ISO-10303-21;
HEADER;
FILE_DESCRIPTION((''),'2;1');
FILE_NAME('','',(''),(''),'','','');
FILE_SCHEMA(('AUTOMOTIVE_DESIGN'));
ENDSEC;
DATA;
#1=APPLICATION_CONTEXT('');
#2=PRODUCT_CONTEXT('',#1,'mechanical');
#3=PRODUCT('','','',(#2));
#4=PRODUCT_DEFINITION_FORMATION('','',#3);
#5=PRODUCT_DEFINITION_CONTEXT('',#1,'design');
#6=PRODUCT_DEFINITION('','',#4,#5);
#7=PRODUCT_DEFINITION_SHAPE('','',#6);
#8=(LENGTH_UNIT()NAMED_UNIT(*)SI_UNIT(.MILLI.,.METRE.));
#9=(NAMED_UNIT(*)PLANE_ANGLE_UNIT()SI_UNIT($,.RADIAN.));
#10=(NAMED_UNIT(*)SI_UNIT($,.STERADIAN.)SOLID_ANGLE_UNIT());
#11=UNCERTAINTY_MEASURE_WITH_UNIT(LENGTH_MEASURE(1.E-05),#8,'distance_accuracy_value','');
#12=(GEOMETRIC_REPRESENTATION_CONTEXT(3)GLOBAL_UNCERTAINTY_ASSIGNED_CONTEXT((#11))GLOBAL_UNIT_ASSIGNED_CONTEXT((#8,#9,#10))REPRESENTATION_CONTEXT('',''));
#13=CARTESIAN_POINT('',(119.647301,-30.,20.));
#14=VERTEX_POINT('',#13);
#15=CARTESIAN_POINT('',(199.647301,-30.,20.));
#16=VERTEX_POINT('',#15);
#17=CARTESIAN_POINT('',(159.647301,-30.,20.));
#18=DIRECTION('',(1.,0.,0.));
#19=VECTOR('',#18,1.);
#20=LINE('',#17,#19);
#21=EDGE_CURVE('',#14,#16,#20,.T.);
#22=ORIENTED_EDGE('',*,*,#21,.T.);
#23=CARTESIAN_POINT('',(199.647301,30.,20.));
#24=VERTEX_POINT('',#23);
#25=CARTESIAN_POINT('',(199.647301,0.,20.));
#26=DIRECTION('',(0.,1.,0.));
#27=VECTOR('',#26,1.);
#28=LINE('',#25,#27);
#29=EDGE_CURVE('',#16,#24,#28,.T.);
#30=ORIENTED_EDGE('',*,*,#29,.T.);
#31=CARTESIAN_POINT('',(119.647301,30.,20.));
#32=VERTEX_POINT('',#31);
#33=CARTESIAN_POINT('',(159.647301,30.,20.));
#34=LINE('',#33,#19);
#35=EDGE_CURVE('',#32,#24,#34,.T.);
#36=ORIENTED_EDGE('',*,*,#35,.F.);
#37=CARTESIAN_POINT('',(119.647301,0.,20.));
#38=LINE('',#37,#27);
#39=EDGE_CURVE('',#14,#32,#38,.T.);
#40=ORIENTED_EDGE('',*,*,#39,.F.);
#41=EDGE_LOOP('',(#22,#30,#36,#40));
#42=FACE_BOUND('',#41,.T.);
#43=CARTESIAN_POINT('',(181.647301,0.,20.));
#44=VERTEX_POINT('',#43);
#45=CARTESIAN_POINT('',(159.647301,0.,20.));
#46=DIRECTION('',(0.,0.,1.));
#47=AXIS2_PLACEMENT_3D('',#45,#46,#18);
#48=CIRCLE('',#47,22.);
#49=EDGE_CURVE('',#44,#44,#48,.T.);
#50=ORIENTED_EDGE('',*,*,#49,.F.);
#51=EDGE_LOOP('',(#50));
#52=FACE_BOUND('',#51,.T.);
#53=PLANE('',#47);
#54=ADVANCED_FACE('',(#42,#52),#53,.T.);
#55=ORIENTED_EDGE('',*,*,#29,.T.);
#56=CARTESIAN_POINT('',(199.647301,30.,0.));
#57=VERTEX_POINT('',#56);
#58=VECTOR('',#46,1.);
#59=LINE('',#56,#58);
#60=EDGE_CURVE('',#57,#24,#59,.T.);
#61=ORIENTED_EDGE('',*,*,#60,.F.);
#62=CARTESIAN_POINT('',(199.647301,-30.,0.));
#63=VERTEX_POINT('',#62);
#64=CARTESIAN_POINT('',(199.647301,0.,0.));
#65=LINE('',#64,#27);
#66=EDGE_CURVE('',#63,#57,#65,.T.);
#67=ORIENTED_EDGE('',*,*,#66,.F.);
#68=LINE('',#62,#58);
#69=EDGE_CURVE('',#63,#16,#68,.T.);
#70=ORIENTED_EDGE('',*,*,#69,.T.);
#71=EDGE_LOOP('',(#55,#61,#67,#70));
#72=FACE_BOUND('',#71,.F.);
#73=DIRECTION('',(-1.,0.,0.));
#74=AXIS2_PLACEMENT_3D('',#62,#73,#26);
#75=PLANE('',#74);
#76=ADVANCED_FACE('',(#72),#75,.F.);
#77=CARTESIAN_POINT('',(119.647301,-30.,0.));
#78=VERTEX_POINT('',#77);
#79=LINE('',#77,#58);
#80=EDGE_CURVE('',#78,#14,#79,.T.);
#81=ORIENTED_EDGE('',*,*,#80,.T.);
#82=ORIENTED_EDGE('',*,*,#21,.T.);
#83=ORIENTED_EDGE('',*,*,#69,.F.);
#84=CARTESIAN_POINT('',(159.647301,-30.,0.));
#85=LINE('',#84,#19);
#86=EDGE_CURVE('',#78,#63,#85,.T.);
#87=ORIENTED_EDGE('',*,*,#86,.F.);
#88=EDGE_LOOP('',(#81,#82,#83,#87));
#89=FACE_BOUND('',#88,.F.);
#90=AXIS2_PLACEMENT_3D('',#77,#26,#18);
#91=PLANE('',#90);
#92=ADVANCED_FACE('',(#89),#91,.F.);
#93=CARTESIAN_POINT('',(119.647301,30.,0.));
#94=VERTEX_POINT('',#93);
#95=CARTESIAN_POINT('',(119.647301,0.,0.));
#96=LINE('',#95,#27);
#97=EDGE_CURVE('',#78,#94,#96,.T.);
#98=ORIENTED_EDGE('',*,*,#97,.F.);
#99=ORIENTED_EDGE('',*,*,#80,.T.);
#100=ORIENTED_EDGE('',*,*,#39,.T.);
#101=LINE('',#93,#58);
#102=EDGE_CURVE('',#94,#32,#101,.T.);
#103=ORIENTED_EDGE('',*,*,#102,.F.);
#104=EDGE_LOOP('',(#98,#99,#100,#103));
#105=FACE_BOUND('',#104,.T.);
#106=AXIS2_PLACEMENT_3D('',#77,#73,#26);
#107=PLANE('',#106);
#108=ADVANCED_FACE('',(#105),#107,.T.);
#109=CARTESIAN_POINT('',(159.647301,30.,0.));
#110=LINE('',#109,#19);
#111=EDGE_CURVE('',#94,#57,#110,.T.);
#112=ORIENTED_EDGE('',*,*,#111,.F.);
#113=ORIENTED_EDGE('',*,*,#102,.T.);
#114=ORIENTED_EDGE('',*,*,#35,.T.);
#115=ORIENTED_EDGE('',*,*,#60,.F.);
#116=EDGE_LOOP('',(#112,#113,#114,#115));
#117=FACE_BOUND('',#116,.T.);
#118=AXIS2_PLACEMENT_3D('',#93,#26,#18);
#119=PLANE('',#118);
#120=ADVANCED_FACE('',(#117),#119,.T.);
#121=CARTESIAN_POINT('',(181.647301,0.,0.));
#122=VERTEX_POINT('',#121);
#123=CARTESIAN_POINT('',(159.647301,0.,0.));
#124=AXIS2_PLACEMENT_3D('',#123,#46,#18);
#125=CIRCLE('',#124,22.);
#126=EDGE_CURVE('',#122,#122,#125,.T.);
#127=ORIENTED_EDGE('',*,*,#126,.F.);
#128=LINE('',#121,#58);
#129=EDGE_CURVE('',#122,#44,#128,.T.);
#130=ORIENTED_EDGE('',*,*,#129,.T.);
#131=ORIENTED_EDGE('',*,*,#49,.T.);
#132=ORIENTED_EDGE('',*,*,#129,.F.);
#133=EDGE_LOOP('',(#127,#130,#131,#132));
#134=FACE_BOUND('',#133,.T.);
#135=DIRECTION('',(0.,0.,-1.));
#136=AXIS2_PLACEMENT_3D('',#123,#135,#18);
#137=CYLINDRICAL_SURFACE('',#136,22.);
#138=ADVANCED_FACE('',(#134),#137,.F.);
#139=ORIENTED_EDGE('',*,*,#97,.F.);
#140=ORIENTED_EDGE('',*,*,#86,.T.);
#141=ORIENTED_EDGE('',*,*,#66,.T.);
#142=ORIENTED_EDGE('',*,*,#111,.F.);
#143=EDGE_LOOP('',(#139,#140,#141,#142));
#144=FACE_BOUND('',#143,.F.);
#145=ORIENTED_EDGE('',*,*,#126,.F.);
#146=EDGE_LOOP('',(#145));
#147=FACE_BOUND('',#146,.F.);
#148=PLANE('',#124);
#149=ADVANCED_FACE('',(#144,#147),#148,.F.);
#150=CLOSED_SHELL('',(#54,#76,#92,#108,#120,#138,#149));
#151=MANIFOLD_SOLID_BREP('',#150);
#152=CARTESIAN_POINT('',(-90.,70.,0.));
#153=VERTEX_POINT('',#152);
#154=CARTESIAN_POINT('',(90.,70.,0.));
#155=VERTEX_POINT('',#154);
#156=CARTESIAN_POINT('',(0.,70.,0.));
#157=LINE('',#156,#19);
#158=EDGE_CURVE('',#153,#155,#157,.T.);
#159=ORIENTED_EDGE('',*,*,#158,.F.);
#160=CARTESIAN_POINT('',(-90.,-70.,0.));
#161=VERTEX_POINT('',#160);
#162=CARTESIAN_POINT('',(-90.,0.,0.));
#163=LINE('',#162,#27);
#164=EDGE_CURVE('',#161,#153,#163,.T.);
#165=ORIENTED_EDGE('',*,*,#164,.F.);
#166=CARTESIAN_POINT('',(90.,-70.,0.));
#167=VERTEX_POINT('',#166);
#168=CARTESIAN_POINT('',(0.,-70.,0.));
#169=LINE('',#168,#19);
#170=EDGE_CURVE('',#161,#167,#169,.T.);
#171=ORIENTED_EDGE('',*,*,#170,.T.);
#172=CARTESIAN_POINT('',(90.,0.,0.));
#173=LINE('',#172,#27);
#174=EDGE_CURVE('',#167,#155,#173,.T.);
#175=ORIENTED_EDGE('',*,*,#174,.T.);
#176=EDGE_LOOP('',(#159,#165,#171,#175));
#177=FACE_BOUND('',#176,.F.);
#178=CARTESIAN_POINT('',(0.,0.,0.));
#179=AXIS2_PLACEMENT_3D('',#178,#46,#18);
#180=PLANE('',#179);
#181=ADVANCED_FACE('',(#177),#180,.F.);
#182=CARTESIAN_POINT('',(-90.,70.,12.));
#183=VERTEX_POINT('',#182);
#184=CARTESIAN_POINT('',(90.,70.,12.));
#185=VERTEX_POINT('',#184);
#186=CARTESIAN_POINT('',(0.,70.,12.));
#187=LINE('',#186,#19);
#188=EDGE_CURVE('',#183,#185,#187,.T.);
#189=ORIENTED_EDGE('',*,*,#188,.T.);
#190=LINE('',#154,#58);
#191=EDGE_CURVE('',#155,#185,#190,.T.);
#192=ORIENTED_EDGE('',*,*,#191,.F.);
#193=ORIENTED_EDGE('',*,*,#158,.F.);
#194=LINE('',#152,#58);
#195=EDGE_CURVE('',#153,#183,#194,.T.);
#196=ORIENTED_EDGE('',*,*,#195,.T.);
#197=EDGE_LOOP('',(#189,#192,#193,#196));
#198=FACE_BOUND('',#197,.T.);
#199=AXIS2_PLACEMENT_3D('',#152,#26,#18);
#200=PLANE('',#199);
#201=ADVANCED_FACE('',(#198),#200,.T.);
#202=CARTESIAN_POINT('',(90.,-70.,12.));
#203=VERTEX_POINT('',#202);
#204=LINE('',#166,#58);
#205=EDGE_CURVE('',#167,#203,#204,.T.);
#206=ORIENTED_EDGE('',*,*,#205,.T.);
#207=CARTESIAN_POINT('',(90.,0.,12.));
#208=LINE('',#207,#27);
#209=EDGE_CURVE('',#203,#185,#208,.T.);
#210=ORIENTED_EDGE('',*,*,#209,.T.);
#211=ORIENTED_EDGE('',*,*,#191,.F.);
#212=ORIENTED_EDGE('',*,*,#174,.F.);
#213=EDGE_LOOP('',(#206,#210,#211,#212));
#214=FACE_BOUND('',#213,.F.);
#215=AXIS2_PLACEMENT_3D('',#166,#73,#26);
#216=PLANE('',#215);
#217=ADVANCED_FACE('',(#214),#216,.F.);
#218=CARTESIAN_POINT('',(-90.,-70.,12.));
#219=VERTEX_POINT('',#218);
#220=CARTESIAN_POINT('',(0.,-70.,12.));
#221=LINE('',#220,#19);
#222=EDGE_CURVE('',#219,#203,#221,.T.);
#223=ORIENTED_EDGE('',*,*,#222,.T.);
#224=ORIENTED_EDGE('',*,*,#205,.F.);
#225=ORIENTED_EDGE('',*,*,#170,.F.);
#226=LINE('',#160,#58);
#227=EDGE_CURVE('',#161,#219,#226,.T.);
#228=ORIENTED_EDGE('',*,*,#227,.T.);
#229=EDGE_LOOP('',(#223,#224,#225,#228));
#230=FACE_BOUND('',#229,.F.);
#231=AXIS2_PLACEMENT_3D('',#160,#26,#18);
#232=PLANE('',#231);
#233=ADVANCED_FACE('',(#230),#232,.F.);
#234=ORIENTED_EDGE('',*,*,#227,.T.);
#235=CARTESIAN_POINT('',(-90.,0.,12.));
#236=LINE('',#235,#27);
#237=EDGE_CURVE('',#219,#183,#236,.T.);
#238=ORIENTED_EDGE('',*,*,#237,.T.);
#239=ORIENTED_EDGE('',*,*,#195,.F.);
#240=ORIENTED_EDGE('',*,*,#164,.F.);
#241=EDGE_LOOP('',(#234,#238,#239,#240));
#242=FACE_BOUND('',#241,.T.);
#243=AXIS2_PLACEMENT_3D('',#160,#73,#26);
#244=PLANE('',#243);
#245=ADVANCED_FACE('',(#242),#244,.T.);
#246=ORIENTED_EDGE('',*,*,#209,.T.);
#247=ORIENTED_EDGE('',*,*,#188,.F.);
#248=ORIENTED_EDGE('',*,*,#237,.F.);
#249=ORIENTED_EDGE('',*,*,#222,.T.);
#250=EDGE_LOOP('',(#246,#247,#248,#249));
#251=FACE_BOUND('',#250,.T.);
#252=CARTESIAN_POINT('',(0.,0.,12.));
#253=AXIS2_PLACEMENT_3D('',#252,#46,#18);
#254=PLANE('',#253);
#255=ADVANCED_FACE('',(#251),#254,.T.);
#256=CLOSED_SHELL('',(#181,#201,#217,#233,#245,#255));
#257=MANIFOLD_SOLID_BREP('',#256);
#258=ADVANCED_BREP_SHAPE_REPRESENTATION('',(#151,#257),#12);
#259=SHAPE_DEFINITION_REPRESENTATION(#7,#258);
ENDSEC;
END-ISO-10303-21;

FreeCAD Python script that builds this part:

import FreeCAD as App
import Part
import Sketcher
from FreeCAD import Vector
Q = App.Units.Quantity


def add_polygon(sketch, points):
    """Adds a closed chain of lines whose ends are joined by coincident constraints."""
    first, n = sketch.GeometryCount, len(points)
    for a, b in zip(points, points[1:] + points[:1]):
        sketch.addGeometry(Part.LineSegment(App.Vector(*a, 0), App.Vector(*b, 0)), False)
    for i in range(n):
        sketch.addConstraint(Sketcher.Constraint("Coincident", first + i, 2, first + (i + 1) % n, 1))

doc = App.newDocument("Part")
body = doc.addObject("PartDesign::Body", "Body")

# Sketch on XY plane
sketch1 = doc.addObject("Sketcher::SketchObject", "Sketch")
body.addObject(sketch1)
sketch1.AttachmentSupport = (doc.XY_Plane, [""])
sketch1.MapMode = "FlatFace"
add_polygon(sketch1, [(-90, 70), (-90, -70), (90, -70), (90, 70)])  # lines 0-3
sketch1.addConstraint(Sketcher.Constraint("Vertical", 0))
sketch1.addConstraint(Sketcher.Constraint("Horizontal", 1))
sketch1.addConstraint(Sketcher.Constraint("Vertical", 2))
sketch1.addConstraint(Sketcher.Constraint("Horizontal", 3))
sketch1.addConstraint(Sketcher.Constraint("Symmetric", 0, 2, 2, 2, -1, 1))
sketch1.addConstraint(Sketcher.Constraint("DistanceX", 1, 1, 1, 2, Q("180 mm")))
sketch1.addConstraint(Sketcher.Constraint("DistanceY", 0, 2, 0, 1, Q("140 mm")))
pad1 = doc.addObject("PartDesign::Pad", "Pad")
body.addObject(pad1)
pad1.Profile = sketch1
pad1.Length = 12
body2 = doc.addObject("PartDesign::Body", "Body001")

# Sketch on XY plane
sketch2 = doc.addObject("Sketcher::SketchObject", "Sketch001")
body2.addObject(sketch2)
sketch2.AttachmentSupport = (doc.getObject("XY_Plane001"), [""])
sketch2.MapMode = "FlatFace"
add_polygon(sketch2, [(119.647301, 30), (119.647301, -30), (199.647301, -30), (199.647301, 30)])  # lines 0-3
sketch2.addGeometry(Part.Circle(Vector(159.647301, 0, 0), Vector(0, 0, 1), 22), False)  # 4
sketch2.addConstraint(Sketcher.Constraint("Vertical", 0))
sketch2.addConstraint(Sketcher.Constraint("Horizontal", 1))
sketch2.addConstraint(Sketcher.Constraint("Vertical", 2))
sketch2.addConstraint(Sketcher.Constraint("Horizontal", 3))
sketch2.addConstraint(Sketcher.Constraint("PointOnObject", 4, 3, -1))
sketch2.addConstraint(Sketcher.Constraint("Diameter", 4, Q("44 mm")))
sketch2.addConstraint(Sketcher.Constraint("DistanceX", 1, 1, 1, 2, Q("80 mm")))
sketch2.addConstraint(Sketcher.Constraint("DistanceY", 0, 2, 0, 1, Q("60 mm")))
sketch2.addConstraint(Sketcher.Constraint("DistanceY", 0, 2, -1, 1, Q("30 mm")))
sketch2.addConstraint(Sketcher.Constraint("DistanceX", 0, 2, 4, 3, Q("40 mm")))
sketch2.addConstraint(Sketcher.Constraint("DistanceX", -1, 1, 4, 3, Q("159.647301 mm")))
pad2 = doc.addObject("PartDesign::Pad", "Pad001")
body2.addObject(pad2)
pad2.Profile = sketch2
pad2.Length = 20

doc.recompute()
